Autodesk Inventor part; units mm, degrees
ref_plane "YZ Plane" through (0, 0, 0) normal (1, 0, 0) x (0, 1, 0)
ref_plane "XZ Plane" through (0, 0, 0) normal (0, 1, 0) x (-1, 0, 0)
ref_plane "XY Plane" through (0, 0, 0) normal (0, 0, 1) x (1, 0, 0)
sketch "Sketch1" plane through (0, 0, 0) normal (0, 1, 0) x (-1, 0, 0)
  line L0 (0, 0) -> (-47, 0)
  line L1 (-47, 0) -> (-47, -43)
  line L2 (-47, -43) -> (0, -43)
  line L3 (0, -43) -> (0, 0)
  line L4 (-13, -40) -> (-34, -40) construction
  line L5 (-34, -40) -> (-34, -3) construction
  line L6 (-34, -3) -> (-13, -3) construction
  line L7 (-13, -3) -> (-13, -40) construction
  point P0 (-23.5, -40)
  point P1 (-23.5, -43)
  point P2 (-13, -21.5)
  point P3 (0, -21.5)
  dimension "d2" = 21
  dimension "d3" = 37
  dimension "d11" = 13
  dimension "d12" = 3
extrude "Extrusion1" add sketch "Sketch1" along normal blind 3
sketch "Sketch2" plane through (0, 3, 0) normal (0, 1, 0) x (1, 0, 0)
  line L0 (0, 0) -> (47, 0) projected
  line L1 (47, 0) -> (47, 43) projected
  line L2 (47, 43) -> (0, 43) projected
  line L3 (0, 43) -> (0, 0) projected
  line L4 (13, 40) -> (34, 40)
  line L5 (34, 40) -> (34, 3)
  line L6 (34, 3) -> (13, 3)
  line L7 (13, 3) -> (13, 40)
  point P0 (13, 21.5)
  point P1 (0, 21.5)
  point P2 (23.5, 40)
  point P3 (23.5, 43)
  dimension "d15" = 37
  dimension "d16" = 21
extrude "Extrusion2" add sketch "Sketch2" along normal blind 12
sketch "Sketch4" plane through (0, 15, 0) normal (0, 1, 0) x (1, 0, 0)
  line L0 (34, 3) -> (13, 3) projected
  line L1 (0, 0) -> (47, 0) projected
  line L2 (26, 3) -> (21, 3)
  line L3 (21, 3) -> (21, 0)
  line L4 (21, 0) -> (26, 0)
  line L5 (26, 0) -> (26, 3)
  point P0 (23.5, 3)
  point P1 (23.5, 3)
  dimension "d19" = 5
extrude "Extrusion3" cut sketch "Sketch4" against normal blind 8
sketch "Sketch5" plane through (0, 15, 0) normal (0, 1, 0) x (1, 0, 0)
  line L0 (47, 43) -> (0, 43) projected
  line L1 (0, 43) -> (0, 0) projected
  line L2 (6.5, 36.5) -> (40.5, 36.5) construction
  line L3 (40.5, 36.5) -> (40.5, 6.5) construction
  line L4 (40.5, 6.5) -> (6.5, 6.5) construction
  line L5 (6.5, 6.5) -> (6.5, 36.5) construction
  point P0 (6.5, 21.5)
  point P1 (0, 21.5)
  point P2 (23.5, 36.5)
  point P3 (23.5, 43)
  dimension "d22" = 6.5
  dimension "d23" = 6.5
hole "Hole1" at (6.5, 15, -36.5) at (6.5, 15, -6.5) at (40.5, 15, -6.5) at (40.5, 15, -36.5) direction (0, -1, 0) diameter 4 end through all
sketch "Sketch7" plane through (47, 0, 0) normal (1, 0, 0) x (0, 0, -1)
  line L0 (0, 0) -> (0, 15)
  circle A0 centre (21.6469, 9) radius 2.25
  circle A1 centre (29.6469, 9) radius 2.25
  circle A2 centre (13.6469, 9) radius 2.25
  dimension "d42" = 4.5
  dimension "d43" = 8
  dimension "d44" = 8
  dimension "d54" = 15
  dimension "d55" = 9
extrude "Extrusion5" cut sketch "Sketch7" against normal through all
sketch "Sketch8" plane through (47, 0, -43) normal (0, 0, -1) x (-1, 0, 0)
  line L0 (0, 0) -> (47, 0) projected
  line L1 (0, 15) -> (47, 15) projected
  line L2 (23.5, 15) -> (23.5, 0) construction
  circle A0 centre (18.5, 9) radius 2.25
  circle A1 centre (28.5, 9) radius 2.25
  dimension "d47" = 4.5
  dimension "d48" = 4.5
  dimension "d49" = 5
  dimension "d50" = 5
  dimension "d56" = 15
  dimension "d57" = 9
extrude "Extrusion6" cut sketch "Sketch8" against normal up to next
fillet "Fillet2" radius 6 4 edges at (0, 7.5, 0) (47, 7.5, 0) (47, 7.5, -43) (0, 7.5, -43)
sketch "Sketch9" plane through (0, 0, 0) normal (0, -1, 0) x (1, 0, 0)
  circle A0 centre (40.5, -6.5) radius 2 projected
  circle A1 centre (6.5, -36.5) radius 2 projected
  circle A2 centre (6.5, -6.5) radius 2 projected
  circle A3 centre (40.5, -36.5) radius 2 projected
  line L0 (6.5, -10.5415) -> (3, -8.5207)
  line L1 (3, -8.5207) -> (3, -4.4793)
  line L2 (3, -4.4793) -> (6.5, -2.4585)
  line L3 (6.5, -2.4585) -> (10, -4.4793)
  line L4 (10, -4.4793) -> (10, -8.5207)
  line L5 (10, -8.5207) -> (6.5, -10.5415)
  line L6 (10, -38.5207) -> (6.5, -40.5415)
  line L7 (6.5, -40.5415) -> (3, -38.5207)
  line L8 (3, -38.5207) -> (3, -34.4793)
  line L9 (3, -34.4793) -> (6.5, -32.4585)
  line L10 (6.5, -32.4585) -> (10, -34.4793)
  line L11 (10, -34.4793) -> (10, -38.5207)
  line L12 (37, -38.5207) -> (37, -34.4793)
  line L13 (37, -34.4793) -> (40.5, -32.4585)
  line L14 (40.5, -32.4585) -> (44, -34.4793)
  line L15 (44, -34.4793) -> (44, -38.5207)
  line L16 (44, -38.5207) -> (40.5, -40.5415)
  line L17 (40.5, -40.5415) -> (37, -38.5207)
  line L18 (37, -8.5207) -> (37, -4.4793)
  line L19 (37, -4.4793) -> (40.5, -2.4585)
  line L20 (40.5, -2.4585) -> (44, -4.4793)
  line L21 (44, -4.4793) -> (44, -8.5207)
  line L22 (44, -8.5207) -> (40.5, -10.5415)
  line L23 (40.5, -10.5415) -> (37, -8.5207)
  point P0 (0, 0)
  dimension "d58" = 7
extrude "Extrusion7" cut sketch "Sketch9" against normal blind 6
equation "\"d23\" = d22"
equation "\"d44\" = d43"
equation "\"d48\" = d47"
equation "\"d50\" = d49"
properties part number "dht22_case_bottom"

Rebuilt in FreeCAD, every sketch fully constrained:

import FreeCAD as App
import Part
import Sketcher
Q = App.Units.Quantity


def edges_at(feature, points):
    """Names of the edges that pass closest to the given points."""
    edges = feature.Shape.Edges
    near = lambda p: min(range(len(edges)), key=lambda i: edges[i].distToShape(Part.Vertex(*p))[0])
    return sorted({f"Edge{near(p) + 1}" for p in points})


def add_polygon(sketch, points):
    """Adds a closed chain of lines whose ends are joined by coincident constraints."""
    first, n = sketch.GeometryCount, len(points)
    for a, b in zip(points, points[1:] + points[:1]):
        sketch.addGeometry(Part.LineSegment(App.Vector(*a, 0), App.Vector(*b, 0)), False)
    for i in range(n):
        sketch.addConstraint(Sketcher.Constraint("Coincident", first + i, 2, first + (i + 1) % n, 1))

doc = App.newDocument("Part")
params = doc.addObject("Spreadsheet::Sheet", "Params")
for row, (alias, value) in enumerate([
    ("sketch1_width", "47 mm"),
    ("sketch1_height", "43 mm"),
    ("pad1_length", "3 mm"),
    ("sketch2_width", "21 mm"),
    ("sketch2_height", "37 mm"),
    ("sketch2_width2", "47 mm"),
    ("sketch2_height2", "43 mm"),
    ("pad2_length", "12 mm"),
    ("sketch3_width", "5 mm"),
    ("sketch3_height", "3 mm"),
    ("pocket1_length", "8 mm"),
    ("sketch4_diameter", "4 mm"),
    ("hole_diameter", "4 mm"),
    ("sketch5_diameter", "4.5 mm"),
    ("sketch6_diameter", "4.5 mm"),
    ("fillet_radius", "6 mm"),
    ("sketch7_diameter", "4 mm"),
    ("pocket4_length", "6 mm"),
], start=1):
    params.set(f"A{row}", alias)
    params.set(f"B{row}", "=" + value)
    params.setAlias(f"B{row}", alias)

body = doc.addObject("PartDesign::Body", "Body")

# Sketch on XZ plane
sketch1 = body.newObject("Sketcher::SketchObject", "Sketch")
sketch1.AttachmentSupport = (doc.getObject("XZ_Plane"), [""])
sketch1.MapMode = "FlatFace"
add_polygon(sketch1, [(0, -43), (0, 0), (47, 0), (47, -43)])  # lines 0-3
sketch1.addConstraint([
    Sketcher.Constraint("Vertical", 0),
    Sketcher.Constraint("Horizontal", 1),
    Sketcher.Constraint("Vertical", 2),
    Sketcher.Constraint("Horizontal", 3),
    Sketcher.Constraint("Coincident", 0, 2, -1, 1),
    Sketcher.Constraint("DistanceX", 1, 1, 1, 2, 47.0),
    Sketcher.Constraint("DistanceY", 0, 1, 0, 2, 43.0),
])
sketch1.setExpression("Constraints[9]", "Params.sketch1_width")
sketch1.setExpression("Constraints[10]", "Params.sketch1_height")
pad1 = body.newObject("PartDesign::Pad", "Pad")
pad1.Profile = sketch1
pad1.setExpression("Length", "Params.pad1_length")
pad1.Reversed = True

# Sketch on XZ plane
sketch2 = body.newObject("Sketcher::SketchObject", "Sketch001")
sketch2.AttachmentSupport = (doc.getObject("XZ_Plane"), [""])
sketch2.MapMode = "FlatFace"
sketch2.AttachmentOffset = App.Placement(App.Vector(0, 0, -3), App.Rotation())
add_polygon(sketch2, [(0, -43), (0, 0), (47, 0), (47, -43)])  # lines 0-3
add_polygon(sketch2, [(13, -3), (13, -40), (34, -40), (34, -3)])  # lines 4-7
sketch2.addConstraint([
    Sketcher.Constraint("Vertical", 0),
    Sketcher.Constraint("Horizontal", 1),
    Sketcher.Constraint("Vertical", 2),
    Sketcher.Constraint("Horizontal", 3),
    Sketcher.Constraint("Vertical", 4),
    Sketcher.Constraint("Horizontal", 5),
    Sketcher.Constraint("Vertical", 6),
    Sketcher.Constraint("Horizontal", 7),
    Sketcher.Constraint("Coincident", 0, 2, -1, 1),
    Sketcher.Constraint("DistanceX", 5, 1, 5, 2, 21.0),
    Sketcher.Constraint("DistanceY", 4, 2, 4, 1, 37.0),
    Sketcher.Constraint("DistanceX", 1, 1, 1, 2, 47.0),
    Sketcher.Constraint("DistanceY", 0, 1, 0, 2, 43.0),
    Sketcher.Constraint("DistanceX", -1, 1, 4, 2, 13.0),
    Sketcher.Constraint("DistanceY", 4, 2, -1, 1, 40.0),
])
sketch2.setExpression("Constraints[17]", "Params.sketch2_width")
sketch2.setExpression("Constraints[18]", "Params.sketch2_height")
sketch2.setExpression("Constraints[19]", "Params.sketch2_width2")
sketch2.setExpression("Constraints[20]", "Params.sketch2_height2")
pad2 = body.newObject("PartDesign::Pad", "Pad001")
pad2.Profile = sketch2
pad2.setExpression("Length", "Params.pad2_length")
pad2.Reversed = True

# Sketch on XZ plane
sketch3 = body.newObject("Sketcher::SketchObject", "Sketch002")
sketch3.AttachmentSupport = (doc.getObject("XZ_Plane"), [""])
sketch3.MapMode = "FlatFace"
sketch3.AttachmentOffset = App.Placement(App.Vector(0, 0, -15), App.Rotation())
add_polygon(sketch3, [(26, 0), (26, -3), (21, -3), (21, 0)])  # lines 0-3
sketch3.addConstraint([
    Sketcher.Constraint("Vertical", 0),
    Sketcher.Constraint("Horizontal", 1),
    Sketcher.Constraint("Vertical", 2),
    Sketcher.Constraint("Horizontal", 3),
    Sketcher.Constraint("PointOnObject", 2, 2, -1),
    Sketcher.Constraint("DistanceX", 1, 2, 1, 1, 5.0),
    Sketcher.Constraint("DistanceY", 0, 2, 0, 1, 3.0),
    Sketcher.Constraint("DistanceX", -1, 1, 0, 2, 26.0),
])
sketch3.setExpression("Constraints[9]", "Params.sketch3_width")
sketch3.setExpression("Constraints[10]", "Params.sketch3_height")
pocket1 = body.newObject("PartDesign::Pocket", "Pocket")
pocket1.Profile = sketch3
pocket1.setExpression("Length", "Params.pocket1_length")
pocket1.Reversed = True

# Sketch on XZ plane
sketch4 = body.newObject("Sketcher::SketchObject", "Sketch003")
sketch4.AttachmentSupport = (doc.getObject("XZ_Plane"), [""])
sketch4.MapMode = "FlatFace"
sketch4.AttachmentOffset = App.Placement(App.Vector(0, 0, -15), App.Rotation())
sketch4.addGeometry([
    Part.Circle(App.Vector(6.5, -36.5, 0), App.Vector(0, 0, 1), 2),
    Part.Circle(App.Vector(6.5, -6.5, 0), App.Vector(0, 0, 1), 2),
    Part.Circle(App.Vector(40.5, -6.5, 0), App.Vector(0, 0, 1), 2),
    Part.Circle(App.Vector(40.5, -36.5, 0), App.Vector(0, 0, 1), 2),
], False)
sketch4.addConstraint([
    Sketcher.Constraint("Equal", 0, 1),
    Sketcher.Constraint("Equal", 1, 2),
    Sketcher.Constraint("Equal", 2, 3),
    Sketcher.Constraint("Horizontal", 1, 3, 2, 3),
    Sketcher.Constraint("Horizontal", 0, 3, 3, 3),
    Sketcher.Constraint("Vertical", 0, 3, 1, 3),
    Sketcher.Constraint("Vertical", 2, 3, 3, 3),
    Sketcher.Constraint("Diameter", 0, 4.0),
    Sketcher.Constraint("DistanceY", 0, 3, 1, 3, 30.0),
    Sketcher.Constraint("DistanceX", 1, 3, 2, 3, 34.0),
    Sketcher.Constraint("DistanceX", -1, 1, 0, 3, 6.5),
    Sketcher.Constraint("DistanceY", 0, 3, -1, 1, 36.5),
])
sketch4.setExpression("Constraints[7]", "Params.sketch4_diameter")
doc.recompute()
hole = body.newObject("PartDesign::Hole", "Hole")
hole.Profile = sketch4
hole.ThreadType = "None"
hole.setExpression("Diameter", "Params.hole_diameter")
hole.DepthType = "ThroughAll"
hole.Reversed = True

# Sketch on YZ plane
sketch5 = body.newObject("Sketcher::SketchObject", "Sketch004")
sketch5.AttachmentSupport = (doc.getObject("YZ_Plane"), [""])
sketch5.MapMode = "FlatFace"
sketch5.AttachmentOffset = App.Placement(App.Vector(0, 0, 47), App.Rotation())
sketch5.addGeometry([
    Part.Circle(App.Vector(9, -21.6, 0), App.Vector(0, 0, 1), 2.2),
    Part.Circle(App.Vector(9, -29.6, 0), App.Vector(0, 0, 1), 2.2),
    Part.Circle(App.Vector(9, -13.6, 0), App.Vector(0, 0, 1), 2.2),
], False)
sketch5.addConstraint([
    Sketcher.Constraint("Equal", 0, 1),
    Sketcher.Constraint("Equal", 1, 2),
    Sketcher.Constraint("Vertical", 0, 3, 1, 3),
    Sketcher.Constraint("Vertical", 1, 3, 2, 3),
    Sketcher.Constraint("Diameter", 0, 4.5),
    Sketcher.Constraint("DistanceX", -1, 1, 0, 3, 9.0),
    Sketcher.Constraint("DistanceY", 1, 3, 0, 3, 8.0),
    Sketcher.Constraint("DistanceY", 0, 3, 2, 3, 8.0),
    Sketcher.Constraint("DistanceY", 0, 3, -1, 1, 21.647),
])
sketch5.setExpression("Constraints[4]", "Params.sketch5_diameter")
pocket2 = body.newObject("PartDesign::Pocket", "Pocket001")
pocket2.Profile = sketch5
pocket2.Type = "ThroughAll"

# Sketch on XY plane
sketch6 = body.newObject("Sketcher::SketchObject", "Sketch005")
sketch6.AttachmentSupport = (doc.getObject("XY_Plane"), [""])
sketch6.MapMode = "FlatFace"
sketch6.AttachmentOffset = App.Placement(App.Vector(0, 0, -43), App.Rotation())
sketch6.addGeometry([
    Part.Circle(App.Vector(28.5, 9, 0), App.Vector(0, 0, 1), 2.2),
    Part.Circle(App.Vector(18.5, 9, 0), App.Vector(0, 0, 1), 2.2),
], False)
sketch6.addConstraint([
    Sketcher.Constraint("Equal", 0, 1),
    Sketcher.Constraint("Horizontal", 0, 3, 1, 3),
    Sketcher.Constraint("Diameter", 0, 4.5),
    Sketcher.Constraint("DistanceY", -1, 1, 0, 3, 9.0),
    Sketcher.Constraint("DistanceX", 1, 3, 0, 3, 10.0),
    Sketcher.Constraint("DistanceX", -1, 1, 0, 3, 28.5),
])
sketch6.setExpression("Constraints[2]", "Params.sketch6_diameter")
pocket3 = body.newObject("PartDesign::Pocket", "Pocket002")
pocket3.Profile = sketch6
pocket3.Type = "UpToFirst"
pocket3.Reversed = True
doc.recompute()

fillet = body.newObject("PartDesign::Fillet", "Fillet")
fillet.Base = (pocket3, edges_at(pocket3, [
    (0, 7.5, 0),
    (47, 7.5, 0),
    (47, 7.5, -43),
    (0, 7.5, -43),
]))
fillet.setExpression("Radius", "Params.fillet_radius")

# Sketch on XZ plane
sketch7 = body.newObject("Sketcher::SketchObject", "Sketch006")
sketch7.AttachmentSupport = (doc.getObject("XZ_Plane"), [""])
sketch7.MapMode = "FlatFace"
add_polygon(sketch7, [(3, -8.5), (6.5, -10.5), (10, -8.5), (10, -4.5), (6.5, -2.5), (3, -4.5)])  # lines 0-5
sketch7.addGeometry(Part.Circle(App.Vector(6.5, -6.5, 0), App.Vector(0, 0, 1), 2), False)  # 6
add_polygon(sketch7, [(6.5, -40.5), (10, -38.5), (10, -34.5), (6.5, -32.5), (3, -34.5), (3, -38.5)])  # lines 7-12
sketch7.addGeometry(Part.Circle(App.Vector(6.5, -36.5, 0), App.Vector(0, 0, 1), 2), False)  # 13
add_polygon(sketch7, [(37, -34.5), (37, -38.5), (40.5, -40.5), (44, -38.5), (44, -34.5), (40.5, -32.5)])  # lines 14-19
sketch7.addGeometry(Part.Circle(App.Vector(40.5, -36.5, 0), App.Vector(0, 0, 1), 2), False)  # 20
add_polygon(sketch7, [(37, -4.5), (37, -8.5), (40.5, -10.5), (44, -8.5), (44, -4.5), (40.5, -2.5)])  # lines 21-26
sketch7.addGeometry(Part.Circle(App.Vector(40.5, -6.5, 0), App.Vector(0, 0, 1), 2), False)  # 27
sketch7.addConstraint([
    Sketcher.Constraint("Vertical", 2),
    Sketcher.Constraint("Vertical", 5),
    Sketcher.Constraint("Vertical", 8),
    Sketcher.Constraint("Vertical", 11),
    Sketcher.Constraint("Vertical", 14),
    Sketcher.Constraint("Vertical", 17),
    Sketcher.Constraint("Vertical", 21),
    Sketcher.Constraint("Vertical", 24),
    Sketcher.Constraint("Equal", 6, 13),
    Sketcher.Constraint("Equal", 13, 20),
    Sketcher.Constraint("Equal", 20, 27),
    Sketcher.Constraint("Parallel", 0, 3),
    Sketcher.Constraint("Parallel", 1, 4),
    Sketcher.Constraint("Parallel", 4, 7),
    Sketcher.Constraint("Parallel", 3, 9),
    Sketcher.Constraint("Parallel", 7, 10),
    Sketcher.Constraint("Parallel", 9, 12),
    Sketcher.Constraint("Parallel", 12, 15),
    Sketcher.Constraint("Parallel", 10, 16),
    Sketcher.Constraint("Parallel", 15, 18),
    Sketcher.Constraint("Parallel", 16, 19),
    Sketcher.Constraint("Parallel", 18, 22),
    Sketcher.Constraint("Parallel", 19, 23),
    Sketcher.Constraint("Parallel", 22, 25),
    Sketcher.Constraint("Parallel", 23, 26),
    Sketcher.Constraint("Horizontal", 13, 3, 20, 3),
    Sketcher.Constraint("Horizontal", 6, 3, 27, 3),
    Sketcher.Constraint("Horizontal", 2, 2, 4, 2),
    Sketcher.Constraint("Horizontal", 1, 2, 5, 2),
    Sketcher.Constraint("Horizontal", 8, 2, 10, 2),
    Sketcher.Constraint("Horizontal", 7, 2, 11, 2),
    Sketcher.Constraint("Horizontal", 11, 2, 14, 2),
    Sketcher.Constraint("Horizontal", 12, 2, 15, 2),
    Sketcher.Constraint("Horizontal", 14, 2, 16, 2),
    Sketcher.Constraint("Horizontal", 10, 2, 17, 2),
    Sketcher.Constraint("Horizontal", 9, 2, 18, 2),
    Sketcher.Constraint("Horizontal", 5, 2, 21, 2),
    Sketcher.Constraint("Horizontal", 0, 2, 22, 2),
    Sketcher.Constraint("Horizontal", 21, 2, 23, 2),
    Sketcher.Constraint("Horizontal", 4, 2, 24, 2),
    Sketcher.Constraint("Horizontal", 3, 2, 25, 2),
    Sketcher.Constraint("Vertical", 6, 3, 13, 3),
    Sketcher.Constraint("Vertical", 20, 3, 27, 3),
    Sketcher.Constraint("Vertical", 13, 3, 0, 2),
    Sketcher.Constraint("Vertical", 0, 2, 3, 2),
    Sketcher.Constraint("Vertical", 2, 2, 7, 2),
    Sketcher.Constraint("Vertical", 3, 2, 9, 2),
    Sketcher.Constraint("Vertical", 27, 3, 15, 2),
    Sketcher.Constraint("Vertical", 19, 2, 21, 2),
    Sketcher.Constraint("Equal", 5, 8),
    Sketcher.Constraint("Diameter", 6, 4.0),
    Sketcher.Constraint("DistanceX", 4, 2, 2, 2, 7.0),
    Sketcher.Constraint("Angle", 0, Q("-30.001 deg")),
    Sketcher.Constraint("DistanceX", -1, 1, 1, 2, 10.0),
    Sketcher.Constraint("DistanceX", -1, 1, 14, 2, 37.0),
    Sketcher.Constraint("DistanceY", 13, 3, 6, 3, 30.0),
    Sketcher.Constraint("DistanceY", 7, 2, 1, 2, 30.0),
    Sketcher.Constraint("DistanceY", 6, 3, -1, 1, 6.5),
    Sketcher.Constraint("DistanceY", 2, 1, 2, 2, 4.0414),
    Sketcher.Constraint("DistanceY", 0, 2, -1, 1, 10.5415),
])
sketch7.setExpression("Constraints[74]", "Params.sketch7_diameter")
pocket4 = body.newObject("PartDesign::Pocket", "Pocket003")
pocket4.Profile = sketch7
pocket4.setExpression("Length", "Params.pocket4_length")

doc.recompute()
